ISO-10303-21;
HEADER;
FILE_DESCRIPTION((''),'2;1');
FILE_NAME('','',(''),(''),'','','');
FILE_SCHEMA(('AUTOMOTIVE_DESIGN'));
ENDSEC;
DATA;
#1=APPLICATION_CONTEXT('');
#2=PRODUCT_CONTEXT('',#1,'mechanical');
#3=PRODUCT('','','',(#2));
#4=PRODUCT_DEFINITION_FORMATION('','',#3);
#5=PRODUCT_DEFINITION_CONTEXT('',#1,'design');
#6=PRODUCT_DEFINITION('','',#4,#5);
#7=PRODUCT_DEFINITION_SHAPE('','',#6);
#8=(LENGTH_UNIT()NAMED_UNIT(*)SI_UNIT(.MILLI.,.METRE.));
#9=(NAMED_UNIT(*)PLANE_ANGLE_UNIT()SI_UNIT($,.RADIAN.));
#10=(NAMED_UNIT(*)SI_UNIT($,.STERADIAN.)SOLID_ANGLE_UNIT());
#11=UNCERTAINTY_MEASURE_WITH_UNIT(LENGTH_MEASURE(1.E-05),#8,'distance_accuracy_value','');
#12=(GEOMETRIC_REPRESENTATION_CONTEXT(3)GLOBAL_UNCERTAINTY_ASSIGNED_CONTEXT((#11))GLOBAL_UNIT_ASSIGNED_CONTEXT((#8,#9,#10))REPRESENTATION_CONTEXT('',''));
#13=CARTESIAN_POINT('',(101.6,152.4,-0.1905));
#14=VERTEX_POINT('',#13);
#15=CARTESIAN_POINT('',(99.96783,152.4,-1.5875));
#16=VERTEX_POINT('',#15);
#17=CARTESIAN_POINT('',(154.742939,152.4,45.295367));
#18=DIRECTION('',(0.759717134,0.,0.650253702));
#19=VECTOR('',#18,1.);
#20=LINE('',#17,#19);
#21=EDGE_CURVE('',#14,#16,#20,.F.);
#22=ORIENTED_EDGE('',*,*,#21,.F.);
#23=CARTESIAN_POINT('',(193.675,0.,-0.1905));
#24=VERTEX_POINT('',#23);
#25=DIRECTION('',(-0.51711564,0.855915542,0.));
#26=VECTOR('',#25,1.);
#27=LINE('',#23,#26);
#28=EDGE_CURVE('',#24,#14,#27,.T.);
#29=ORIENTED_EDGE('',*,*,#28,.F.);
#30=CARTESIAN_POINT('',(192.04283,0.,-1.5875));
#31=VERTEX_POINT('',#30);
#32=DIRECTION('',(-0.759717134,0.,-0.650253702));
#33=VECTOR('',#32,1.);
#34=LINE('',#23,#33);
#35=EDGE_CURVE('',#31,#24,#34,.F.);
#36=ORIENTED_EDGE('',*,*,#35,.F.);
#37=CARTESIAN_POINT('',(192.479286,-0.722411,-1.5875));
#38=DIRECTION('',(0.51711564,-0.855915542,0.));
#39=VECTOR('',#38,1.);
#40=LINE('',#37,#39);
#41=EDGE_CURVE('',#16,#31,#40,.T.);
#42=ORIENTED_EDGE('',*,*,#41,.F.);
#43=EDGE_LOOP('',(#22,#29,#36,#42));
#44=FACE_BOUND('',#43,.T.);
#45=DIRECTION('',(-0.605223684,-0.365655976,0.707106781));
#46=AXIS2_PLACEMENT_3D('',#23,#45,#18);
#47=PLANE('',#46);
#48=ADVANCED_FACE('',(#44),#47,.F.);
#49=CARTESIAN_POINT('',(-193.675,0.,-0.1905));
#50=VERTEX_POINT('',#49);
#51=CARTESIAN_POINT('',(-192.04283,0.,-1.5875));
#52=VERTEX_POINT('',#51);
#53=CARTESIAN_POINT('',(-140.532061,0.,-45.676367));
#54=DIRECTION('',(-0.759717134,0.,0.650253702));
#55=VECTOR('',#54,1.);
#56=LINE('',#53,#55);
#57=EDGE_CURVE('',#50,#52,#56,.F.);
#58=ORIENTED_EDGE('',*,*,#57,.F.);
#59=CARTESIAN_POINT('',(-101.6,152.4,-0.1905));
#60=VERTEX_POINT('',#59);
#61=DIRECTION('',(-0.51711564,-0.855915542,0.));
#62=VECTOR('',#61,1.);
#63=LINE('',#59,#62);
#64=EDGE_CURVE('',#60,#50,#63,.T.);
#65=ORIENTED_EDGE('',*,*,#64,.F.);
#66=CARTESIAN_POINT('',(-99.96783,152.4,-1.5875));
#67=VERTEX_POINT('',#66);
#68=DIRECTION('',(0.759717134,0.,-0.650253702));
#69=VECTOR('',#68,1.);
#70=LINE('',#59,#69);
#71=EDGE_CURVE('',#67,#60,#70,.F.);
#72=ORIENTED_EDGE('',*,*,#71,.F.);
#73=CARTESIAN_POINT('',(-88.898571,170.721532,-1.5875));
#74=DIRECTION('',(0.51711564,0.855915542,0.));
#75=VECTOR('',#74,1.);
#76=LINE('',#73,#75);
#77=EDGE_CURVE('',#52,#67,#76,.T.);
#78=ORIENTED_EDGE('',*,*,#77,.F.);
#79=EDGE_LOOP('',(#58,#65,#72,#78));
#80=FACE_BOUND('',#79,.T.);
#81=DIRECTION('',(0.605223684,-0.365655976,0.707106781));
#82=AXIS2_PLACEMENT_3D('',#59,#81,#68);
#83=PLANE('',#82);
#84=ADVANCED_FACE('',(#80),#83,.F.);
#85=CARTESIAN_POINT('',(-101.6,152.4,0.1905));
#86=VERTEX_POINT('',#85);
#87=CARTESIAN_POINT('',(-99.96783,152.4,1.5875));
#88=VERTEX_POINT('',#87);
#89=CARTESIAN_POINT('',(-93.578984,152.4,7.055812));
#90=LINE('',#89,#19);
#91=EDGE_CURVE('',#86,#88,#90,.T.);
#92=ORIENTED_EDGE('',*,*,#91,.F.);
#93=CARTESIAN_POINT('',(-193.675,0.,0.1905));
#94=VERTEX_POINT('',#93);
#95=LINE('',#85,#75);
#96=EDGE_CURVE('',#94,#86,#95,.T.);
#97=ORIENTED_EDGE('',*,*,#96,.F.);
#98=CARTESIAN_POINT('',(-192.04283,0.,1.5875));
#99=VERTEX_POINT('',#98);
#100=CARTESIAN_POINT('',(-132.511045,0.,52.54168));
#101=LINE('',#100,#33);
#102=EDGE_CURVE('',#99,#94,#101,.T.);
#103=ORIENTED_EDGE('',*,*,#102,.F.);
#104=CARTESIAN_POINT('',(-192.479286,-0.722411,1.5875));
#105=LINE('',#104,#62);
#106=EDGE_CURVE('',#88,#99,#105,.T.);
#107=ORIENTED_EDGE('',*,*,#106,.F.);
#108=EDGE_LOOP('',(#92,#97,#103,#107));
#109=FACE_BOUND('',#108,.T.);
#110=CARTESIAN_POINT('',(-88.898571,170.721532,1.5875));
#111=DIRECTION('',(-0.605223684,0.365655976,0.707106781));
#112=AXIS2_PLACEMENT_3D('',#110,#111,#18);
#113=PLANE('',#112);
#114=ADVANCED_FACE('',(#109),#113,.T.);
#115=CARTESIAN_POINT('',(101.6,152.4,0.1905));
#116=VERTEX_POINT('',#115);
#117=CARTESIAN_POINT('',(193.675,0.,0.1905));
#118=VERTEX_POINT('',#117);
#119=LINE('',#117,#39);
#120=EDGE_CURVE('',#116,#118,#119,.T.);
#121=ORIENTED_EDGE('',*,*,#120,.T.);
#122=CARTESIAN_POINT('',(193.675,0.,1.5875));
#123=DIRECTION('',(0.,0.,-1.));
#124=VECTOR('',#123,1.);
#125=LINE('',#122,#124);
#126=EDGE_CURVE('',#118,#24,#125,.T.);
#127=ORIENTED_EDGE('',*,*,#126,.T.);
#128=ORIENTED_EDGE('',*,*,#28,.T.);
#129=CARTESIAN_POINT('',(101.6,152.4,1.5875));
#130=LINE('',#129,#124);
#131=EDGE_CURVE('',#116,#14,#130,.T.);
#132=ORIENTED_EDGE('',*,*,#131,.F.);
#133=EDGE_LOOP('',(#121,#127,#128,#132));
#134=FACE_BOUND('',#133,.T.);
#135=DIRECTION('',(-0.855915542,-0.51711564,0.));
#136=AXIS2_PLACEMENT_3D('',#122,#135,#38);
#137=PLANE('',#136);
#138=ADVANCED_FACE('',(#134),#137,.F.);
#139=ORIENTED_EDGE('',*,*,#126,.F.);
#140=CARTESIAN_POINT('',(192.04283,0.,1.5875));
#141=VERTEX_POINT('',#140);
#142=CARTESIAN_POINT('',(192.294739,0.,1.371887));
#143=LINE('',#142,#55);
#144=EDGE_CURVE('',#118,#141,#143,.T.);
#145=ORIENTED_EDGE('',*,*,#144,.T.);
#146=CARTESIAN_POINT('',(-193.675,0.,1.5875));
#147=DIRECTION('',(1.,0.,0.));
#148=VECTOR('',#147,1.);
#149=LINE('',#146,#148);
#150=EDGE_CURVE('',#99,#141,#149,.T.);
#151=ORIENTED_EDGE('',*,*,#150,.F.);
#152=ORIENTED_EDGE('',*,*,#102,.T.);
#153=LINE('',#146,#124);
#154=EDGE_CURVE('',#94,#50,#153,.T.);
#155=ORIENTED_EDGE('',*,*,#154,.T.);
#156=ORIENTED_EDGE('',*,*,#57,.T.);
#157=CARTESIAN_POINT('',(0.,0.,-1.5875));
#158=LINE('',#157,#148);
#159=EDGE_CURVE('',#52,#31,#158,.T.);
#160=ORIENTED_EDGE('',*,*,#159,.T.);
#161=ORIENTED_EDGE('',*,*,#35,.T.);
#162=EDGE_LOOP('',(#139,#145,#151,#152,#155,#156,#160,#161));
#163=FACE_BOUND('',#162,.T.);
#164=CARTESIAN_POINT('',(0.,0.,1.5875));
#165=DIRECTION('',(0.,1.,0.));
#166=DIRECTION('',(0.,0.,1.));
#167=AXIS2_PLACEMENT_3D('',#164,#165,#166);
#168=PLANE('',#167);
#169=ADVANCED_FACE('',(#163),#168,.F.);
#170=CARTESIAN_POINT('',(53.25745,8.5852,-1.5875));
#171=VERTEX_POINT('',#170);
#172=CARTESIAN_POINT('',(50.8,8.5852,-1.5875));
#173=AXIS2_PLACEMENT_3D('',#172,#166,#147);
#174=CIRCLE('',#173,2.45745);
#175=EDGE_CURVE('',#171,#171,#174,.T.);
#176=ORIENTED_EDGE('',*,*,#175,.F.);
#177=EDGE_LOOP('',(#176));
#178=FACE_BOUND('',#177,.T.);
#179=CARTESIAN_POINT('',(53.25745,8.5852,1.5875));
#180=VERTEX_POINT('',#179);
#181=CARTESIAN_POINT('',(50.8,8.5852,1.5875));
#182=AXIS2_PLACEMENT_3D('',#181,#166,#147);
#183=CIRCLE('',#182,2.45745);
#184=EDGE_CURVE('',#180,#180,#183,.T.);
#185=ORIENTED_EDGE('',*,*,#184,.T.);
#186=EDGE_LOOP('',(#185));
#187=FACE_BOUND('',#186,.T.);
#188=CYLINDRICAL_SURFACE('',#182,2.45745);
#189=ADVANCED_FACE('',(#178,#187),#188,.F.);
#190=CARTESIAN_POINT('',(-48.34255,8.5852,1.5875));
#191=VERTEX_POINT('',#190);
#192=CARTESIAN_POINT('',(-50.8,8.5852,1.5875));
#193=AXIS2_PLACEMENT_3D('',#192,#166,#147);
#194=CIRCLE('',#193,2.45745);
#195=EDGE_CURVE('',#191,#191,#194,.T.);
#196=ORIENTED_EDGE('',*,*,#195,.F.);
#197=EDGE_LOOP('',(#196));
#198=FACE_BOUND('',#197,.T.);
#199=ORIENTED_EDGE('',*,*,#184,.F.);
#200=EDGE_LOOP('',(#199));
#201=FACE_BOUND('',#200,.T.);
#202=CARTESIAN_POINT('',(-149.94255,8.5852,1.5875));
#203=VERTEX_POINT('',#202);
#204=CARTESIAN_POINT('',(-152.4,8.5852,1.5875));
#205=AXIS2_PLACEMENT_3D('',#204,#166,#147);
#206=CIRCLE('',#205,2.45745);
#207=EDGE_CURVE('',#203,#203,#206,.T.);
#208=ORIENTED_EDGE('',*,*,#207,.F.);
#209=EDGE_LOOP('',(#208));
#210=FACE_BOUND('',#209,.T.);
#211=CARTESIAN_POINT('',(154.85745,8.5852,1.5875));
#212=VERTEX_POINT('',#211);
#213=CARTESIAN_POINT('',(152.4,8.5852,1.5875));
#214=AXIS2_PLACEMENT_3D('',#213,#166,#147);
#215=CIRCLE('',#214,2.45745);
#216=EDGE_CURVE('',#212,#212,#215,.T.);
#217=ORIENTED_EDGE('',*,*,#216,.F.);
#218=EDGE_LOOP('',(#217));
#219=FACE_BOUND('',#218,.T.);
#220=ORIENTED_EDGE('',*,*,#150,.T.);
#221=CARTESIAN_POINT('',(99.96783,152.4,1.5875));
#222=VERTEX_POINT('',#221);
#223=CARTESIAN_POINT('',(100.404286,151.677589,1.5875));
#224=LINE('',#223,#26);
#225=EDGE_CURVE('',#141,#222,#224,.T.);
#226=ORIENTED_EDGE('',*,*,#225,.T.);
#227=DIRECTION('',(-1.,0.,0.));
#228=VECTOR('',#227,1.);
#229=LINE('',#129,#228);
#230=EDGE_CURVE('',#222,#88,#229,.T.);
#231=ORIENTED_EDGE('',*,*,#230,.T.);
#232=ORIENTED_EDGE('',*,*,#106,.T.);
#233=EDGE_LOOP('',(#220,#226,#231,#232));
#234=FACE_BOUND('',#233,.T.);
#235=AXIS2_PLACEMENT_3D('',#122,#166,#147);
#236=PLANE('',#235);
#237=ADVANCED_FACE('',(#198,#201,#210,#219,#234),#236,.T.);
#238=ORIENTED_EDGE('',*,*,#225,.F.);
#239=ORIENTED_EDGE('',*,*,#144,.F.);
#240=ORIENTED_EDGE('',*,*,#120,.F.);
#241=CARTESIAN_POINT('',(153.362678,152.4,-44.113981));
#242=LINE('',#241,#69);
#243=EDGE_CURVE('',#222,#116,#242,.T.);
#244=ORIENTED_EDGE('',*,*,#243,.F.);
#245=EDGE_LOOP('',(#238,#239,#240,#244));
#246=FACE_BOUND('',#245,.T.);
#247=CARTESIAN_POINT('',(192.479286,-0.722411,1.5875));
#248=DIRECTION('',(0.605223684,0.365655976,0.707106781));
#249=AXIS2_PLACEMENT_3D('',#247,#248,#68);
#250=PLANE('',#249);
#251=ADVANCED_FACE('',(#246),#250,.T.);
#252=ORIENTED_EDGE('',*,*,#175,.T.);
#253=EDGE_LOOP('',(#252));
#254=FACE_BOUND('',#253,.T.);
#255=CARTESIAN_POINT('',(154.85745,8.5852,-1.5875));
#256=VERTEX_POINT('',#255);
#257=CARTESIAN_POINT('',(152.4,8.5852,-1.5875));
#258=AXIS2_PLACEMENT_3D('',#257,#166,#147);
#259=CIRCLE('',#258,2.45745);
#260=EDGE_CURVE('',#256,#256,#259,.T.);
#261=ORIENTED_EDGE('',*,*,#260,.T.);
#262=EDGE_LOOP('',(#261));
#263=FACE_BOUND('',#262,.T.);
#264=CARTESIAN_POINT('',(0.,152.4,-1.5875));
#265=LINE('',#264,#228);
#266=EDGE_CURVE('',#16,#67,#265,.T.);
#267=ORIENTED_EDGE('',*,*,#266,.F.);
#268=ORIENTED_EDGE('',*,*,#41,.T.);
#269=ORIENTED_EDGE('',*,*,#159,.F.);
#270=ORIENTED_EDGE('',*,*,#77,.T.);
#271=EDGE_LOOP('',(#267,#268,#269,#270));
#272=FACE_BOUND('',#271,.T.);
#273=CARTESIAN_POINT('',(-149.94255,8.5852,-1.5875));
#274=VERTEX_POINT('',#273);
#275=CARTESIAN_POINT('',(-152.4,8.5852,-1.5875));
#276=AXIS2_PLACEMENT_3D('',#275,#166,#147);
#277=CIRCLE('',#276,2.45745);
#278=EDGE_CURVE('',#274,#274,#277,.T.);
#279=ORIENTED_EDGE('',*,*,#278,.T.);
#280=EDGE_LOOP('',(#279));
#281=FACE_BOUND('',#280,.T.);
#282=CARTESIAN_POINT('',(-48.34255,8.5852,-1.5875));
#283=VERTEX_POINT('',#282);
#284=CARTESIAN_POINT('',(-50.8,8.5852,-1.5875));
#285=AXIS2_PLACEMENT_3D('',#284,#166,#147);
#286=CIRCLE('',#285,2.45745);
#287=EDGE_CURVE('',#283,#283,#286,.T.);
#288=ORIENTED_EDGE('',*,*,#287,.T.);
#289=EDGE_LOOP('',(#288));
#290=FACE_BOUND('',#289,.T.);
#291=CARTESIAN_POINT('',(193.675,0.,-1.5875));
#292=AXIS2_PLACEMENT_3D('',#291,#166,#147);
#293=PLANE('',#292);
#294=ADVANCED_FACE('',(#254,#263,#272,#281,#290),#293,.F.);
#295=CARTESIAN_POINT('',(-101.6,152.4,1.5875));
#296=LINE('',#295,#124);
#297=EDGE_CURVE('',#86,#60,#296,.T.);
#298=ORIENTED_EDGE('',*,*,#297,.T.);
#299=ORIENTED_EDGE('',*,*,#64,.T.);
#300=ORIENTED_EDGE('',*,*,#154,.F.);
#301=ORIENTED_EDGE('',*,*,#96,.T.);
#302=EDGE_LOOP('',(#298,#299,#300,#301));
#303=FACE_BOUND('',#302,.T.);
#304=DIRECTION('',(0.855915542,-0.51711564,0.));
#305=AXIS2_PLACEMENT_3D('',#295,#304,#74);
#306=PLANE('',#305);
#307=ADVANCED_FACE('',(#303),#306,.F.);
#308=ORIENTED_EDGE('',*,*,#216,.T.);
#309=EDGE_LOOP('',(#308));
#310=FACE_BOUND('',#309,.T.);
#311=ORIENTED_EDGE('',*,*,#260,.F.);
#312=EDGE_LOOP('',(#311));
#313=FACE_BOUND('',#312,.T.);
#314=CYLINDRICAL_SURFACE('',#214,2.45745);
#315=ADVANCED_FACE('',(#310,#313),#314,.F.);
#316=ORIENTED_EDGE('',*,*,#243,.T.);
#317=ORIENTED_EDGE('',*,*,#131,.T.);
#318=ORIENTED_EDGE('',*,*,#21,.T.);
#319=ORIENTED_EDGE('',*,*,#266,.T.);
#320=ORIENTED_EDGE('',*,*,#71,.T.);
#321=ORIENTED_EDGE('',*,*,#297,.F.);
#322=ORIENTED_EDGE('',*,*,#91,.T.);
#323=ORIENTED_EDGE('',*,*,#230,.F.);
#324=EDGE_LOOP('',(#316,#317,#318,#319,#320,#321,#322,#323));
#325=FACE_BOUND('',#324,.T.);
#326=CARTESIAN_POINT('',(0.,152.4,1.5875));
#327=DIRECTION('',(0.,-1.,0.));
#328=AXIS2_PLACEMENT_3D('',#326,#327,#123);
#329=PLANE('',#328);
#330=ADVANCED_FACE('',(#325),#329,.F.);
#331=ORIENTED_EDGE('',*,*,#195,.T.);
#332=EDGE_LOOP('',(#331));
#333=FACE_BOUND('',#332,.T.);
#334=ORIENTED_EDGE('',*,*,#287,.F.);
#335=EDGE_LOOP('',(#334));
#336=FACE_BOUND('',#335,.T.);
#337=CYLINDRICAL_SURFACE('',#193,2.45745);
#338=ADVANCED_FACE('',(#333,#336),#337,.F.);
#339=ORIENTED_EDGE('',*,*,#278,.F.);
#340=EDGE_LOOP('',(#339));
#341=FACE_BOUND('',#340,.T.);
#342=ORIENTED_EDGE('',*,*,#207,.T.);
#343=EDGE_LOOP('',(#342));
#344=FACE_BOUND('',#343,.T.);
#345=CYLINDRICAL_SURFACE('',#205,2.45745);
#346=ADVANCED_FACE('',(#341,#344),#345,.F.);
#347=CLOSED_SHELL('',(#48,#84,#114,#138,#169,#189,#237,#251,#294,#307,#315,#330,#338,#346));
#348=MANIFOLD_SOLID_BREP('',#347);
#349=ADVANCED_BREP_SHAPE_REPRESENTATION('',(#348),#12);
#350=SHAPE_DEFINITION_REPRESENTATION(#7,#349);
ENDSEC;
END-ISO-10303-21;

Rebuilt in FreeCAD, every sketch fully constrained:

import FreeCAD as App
import Part
import Sketcher
Q = App.Units.Quantity


def edges_at(feature, points):
    """Names of the edges that pass closest to the given points."""
    edges = feature.Shape.Edges
    near = lambda p: min(range(len(edges)), key=lambda i: edges[i].distToShape(Part.Vertex(*p))[0])
    return sorted({f"Edge{near(p) + 1}" for p in points})

doc = App.newDocument("Part")
body = doc.addObject("PartDesign::Body", "Body")

sketch1 = body.newObject("Sketcher::SketchObject", "Sketch")
sketch1.AttachmentSupport = (doc.getObject("XY_Plane"), [""])
sketch1.MapMode = "FlatFace"
sketch1.addGeometry(Part.LineSegment(App.Vector(194, 0, 0), App.Vector(102, 152, 0)), False)
sketch1.addGeometry(Part.LineSegment(App.Vector(102, 152, 0), App.Vector(-102, 152, 0)), False)
sketch1.addGeometry(Part.LineSegment(App.Vector(-102, 152, 0), App.Vector(-194, 0, 0)), False)
sketch1.addGeometry(Part.LineSegment(App.Vector(-194, 0, 0), App.Vector(194, 0, 0)), False)
sketch1.addConstraint(Sketcher.Constraint("Coincident", 0, 2, 1, 1))
sketch1.addConstraint(Sketcher.Constraint("Coincident", 1, 2, 2, 1))
sketch1.addConstraint(Sketcher.Constraint("Coincident", 2, 2, 3, 1))
sketch1.addConstraint(Sketcher.Constraint("Coincident", 3, 2, 0, 1))
sketch1.addConstraint(Sketcher.Constraint("Horizontal", 1))
sketch1.addConstraint(Sketcher.Constraint("Horizontal", 3))
sketch1.addConstraint(Sketcher.Constraint("Symmetric", 2, 2, 3, 2, -1, 1))
sketch1.addConstraint(Sketcher.Constraint("Equal", 0, 2))
sketch1.addConstraint(Sketcher.Constraint("DistanceX", 1, 2, 1, 1, Q("8 in")))
sketch1.addConstraint(Sketcher.Constraint("DistanceY", -1, 1, 0, 2, Q("6 in")))
sketch1.addConstraint(Sketcher.Constraint("DistanceX", 3, 1, 3, 2, Q("15.25 in")))
pad1 = body.newObject("PartDesign::Pad", "Pad")
pad1.Profile = sketch1
pad1.Length = Q("0.125 in")
pad1.Midplane = True
doc.recompute()

chamfer = body.newObject("PartDesign::Chamfer", "Chamfer")
chamfer.Base = (pad1, edges_at(pad1, [
    (147.637, 76.2, 1.587),
    (-147.637, 76.2, 1.587),
    (-147.637, 76.2, -1.587),
    (147.637, 76.2, -1.587),
]))
chamfer.Size = Q("0.055 in")

sketch2 = body.newObject("Sketcher::SketchObject", "Sketch001")
sketch2.AttachmentSupport = (doc.getObject("XY_Plane"), [""])
sketch2.MapMode = "FlatFace"
sketch2.AttachmentOffset = App.Placement(App.Vector(0, 0, 0.0625 * 25.4), App.Rotation())
sketch2.addGeometry(Part.Circle(App.Vector(50.8, 8.6, 0), App.Vector(0, 0, 1), 2.5), False)
sketch2.addConstraint(Sketcher.Constraint("DistanceX", -1, 1, 0, 3, Q("2 in")))
sketch2.addConstraint(Sketcher.Constraint("Diameter", 0, Q("0.1935 in")))
sketch2.addConstraint(Sketcher.Constraint("DistanceY", -1, 1, 0, 3, Q("0.338 in")))
doc.recompute()
hole = body.newObject("PartDesign::Hole", "Hole")
hole.Profile = sketch2
hole.ThreadType = "None"
hole.Diameter = Q("0.1935 in")
hole.DepthType = "ThroughAll"
doc.recompute()

linearpattern = body.newObject("PartDesign::LinearPattern", "LinearPattern")
linearpattern.Originals = [hole]
linearpattern.Direction = (doc.getObject("X_Axis"), [""])
linearpattern.Mode = "offset"
linearpattern.Offset = Q("4 in")
linearpattern.Occurrences = 3
linearpattern.Reversed = True
body.Tip = linearpattern
doc.recompute()

linearpattern2 = body.newObject("PartDesign::LinearPattern", "LinearPattern001")
linearpattern2.Originals = [hole]
linearpattern2.Direction = (doc.getObject("X_Axis"), [""])
linearpattern2.Mode = "offset"
linearpattern2.Offset = Q("4 in")
linearpattern2.Occurrences = 2
body.Tip = linearpattern2

doc.recompute()
